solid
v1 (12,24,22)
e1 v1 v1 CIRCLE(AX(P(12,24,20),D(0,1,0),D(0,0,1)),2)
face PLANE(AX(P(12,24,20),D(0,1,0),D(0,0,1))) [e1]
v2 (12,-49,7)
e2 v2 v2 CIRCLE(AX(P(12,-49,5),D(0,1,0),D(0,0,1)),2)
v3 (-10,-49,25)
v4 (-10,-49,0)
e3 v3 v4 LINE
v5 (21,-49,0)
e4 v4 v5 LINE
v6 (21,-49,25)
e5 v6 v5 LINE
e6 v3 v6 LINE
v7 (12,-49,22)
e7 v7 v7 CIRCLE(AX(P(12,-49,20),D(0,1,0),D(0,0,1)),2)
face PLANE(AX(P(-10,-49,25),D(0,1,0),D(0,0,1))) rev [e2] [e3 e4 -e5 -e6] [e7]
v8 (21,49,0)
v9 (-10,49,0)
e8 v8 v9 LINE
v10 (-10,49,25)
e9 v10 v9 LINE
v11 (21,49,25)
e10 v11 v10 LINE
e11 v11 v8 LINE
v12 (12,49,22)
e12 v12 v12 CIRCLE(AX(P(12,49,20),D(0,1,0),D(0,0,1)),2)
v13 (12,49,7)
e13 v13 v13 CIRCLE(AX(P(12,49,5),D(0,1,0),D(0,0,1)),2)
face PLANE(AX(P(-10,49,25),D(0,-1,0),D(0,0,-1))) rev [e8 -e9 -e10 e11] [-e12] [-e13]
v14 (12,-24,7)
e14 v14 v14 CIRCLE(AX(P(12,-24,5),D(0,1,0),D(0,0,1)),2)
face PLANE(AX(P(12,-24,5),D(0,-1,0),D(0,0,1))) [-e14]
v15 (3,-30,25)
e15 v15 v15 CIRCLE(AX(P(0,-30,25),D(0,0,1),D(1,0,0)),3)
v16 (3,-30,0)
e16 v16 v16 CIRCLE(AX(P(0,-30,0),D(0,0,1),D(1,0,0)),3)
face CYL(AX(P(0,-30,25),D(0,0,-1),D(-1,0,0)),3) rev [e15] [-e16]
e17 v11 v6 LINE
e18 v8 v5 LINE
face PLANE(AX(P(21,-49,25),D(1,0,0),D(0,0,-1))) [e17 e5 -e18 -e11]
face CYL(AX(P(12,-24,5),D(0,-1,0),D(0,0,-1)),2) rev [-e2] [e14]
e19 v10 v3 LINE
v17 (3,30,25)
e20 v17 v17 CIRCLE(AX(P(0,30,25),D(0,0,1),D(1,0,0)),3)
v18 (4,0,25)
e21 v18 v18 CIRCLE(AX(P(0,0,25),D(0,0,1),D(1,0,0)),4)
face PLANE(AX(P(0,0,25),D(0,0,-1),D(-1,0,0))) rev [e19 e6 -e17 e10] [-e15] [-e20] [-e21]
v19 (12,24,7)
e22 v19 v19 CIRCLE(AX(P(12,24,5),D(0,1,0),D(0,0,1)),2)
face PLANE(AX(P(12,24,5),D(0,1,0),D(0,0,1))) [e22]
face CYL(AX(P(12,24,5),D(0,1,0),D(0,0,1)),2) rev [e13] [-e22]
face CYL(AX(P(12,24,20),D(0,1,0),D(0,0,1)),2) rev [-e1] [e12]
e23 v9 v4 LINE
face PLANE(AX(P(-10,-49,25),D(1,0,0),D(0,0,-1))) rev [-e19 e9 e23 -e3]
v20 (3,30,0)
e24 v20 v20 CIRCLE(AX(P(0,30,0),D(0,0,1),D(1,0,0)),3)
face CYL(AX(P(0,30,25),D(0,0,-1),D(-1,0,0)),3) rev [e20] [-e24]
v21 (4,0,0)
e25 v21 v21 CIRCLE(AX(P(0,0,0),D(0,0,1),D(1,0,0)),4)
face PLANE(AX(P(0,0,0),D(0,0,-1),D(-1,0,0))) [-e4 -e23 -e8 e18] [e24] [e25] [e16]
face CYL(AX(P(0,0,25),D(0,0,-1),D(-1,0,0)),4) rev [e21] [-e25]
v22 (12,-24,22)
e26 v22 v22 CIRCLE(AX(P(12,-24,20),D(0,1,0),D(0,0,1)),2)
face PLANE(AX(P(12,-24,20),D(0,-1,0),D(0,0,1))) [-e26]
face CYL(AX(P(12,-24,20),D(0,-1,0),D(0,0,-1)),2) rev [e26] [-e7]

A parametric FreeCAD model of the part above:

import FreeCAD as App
import Part
import Sketcher
Q = App.Units.Quantity


def add_polygon(sketch, points):
    """Adds a closed chain of lines whose ends are joined by coincident constraints."""
    first, n = sketch.GeometryCount, len(points)
    for a, b in zip(points, points[1:] + points[:1]):
        sketch.addGeometry(Part.LineSegment(App.Vector(*a, 0), App.Vector(*b, 0)), False)
    for i in range(n):
        sketch.addConstraint(Sketcher.Constraint("Coincident", first + i, 2, first + (i + 1) % n, 1))

doc = App.newDocument("Part")
params = doc.addObject("Spreadsheet::Sheet", "Params")
for row, (alias, value) in enumerate([
    ("sketch1_diameter", "6 mm"),
    ("sketch1_diameter2", "8 mm"),
    ("sketch1_width", "20 mm"),
    ("sketch1_height", "98 mm"),
    ("pad1_length", "25 mm"),
    ("sketch2_width", "11 mm"),
    ("sketch2_height", "98 mm"),
    ("pad2_length", "25 mm"),
    ("sketch3_diameter", "4 mm"),
    ("pocket1_length", "25 mm"),
], start=1):
    params.set(f"A{row}", alias)
    params.set(f"B{row}", "=" + value)
    params.setAlias(f"B{row}", alias)

body = doc.addObject("PartDesign::Body", "Body")

# Sketch on XY plane
sketch1 = body.newObject("Sketcher::SketchObject", "Sketch")
sketch1.AttachmentSupport = (doc.getObject("XY_Plane"), [""])
sketch1.MapMode = "FlatFace"
add_polygon(sketch1, [(-10, 49), (-10, -49), (10, -49), (10, 49)])  # lines 0-3
sketch1.addGeometry(Part.Circle(App.Vector(0, -30, 0), App.Vector(0, 0, 1), 3), False)  # 4
sketch1.addGeometry(Part.Circle(App.Vector(0, 0, 0), App.Vector(0, 0, 1), 4), False)  # 5
sketch1.addGeometry(Part.Circle(App.Vector(0, 30, 0), App.Vector(0, 0, 1), 3), False)  # 6
sketch1.addConstraint([
    Sketcher.Constraint("Vertical", 0),
    Sketcher.Constraint("Horizontal", 1),
    Sketcher.Constraint("Vertical", 2),
    Sketcher.Constraint("Horizontal", 3),
    Sketcher.Constraint("Coincident", 5, 3, -1, 1),
    Sketcher.Constraint("Equal", 4, 6),
    Sketcher.Constraint("Symmetric", 4, 3, 6, 3, -1, 1),
    Sketcher.Constraint("Symmetric", 0, 2, 2, 2, -1, 1),
    Sketcher.Constraint("PointOnObject", 4, 3, -2),
    Sketcher.Constraint("Diameter", 4, Q("6 mm")),
    Sketcher.Constraint("Diameter", 5, Q("8 mm")),
    Sketcher.Constraint("DistanceX", 1, 1, 1, 2, Q("20 mm")),
    Sketcher.Constraint("DistanceY", 0, 2, 0, 1, Q("98 mm")),
    Sketcher.Constraint("DistanceY", 4, 3, -1, 1, Q("30 mm")),
])
sketch1.setExpression("Constraints[13]", "Params.sketch1_diameter")
sketch1.setExpression("Constraints[14]", "Params.sketch1_diameter2")
sketch1.setExpression("Constraints[15]", "Params.sketch1_width")
sketch1.setExpression("Constraints[16]", "Params.sketch1_height")
pad1 = body.newObject("PartDesign::Pad", "Pad")
pad1.Profile = sketch1
pad1.setExpression("Length", "Params.pad1_length")

# Sketch on XY plane
sketch2 = body.newObject("Sketcher::SketchObject", "Sketch001")
sketch2.AttachmentSupport = (doc.getObject("XY_Plane"), [""])
sketch2.MapMode = "FlatFace"
add_polygon(sketch2, [(21, 49), (21, -49), (10, -49), (10, 49)])  # lines 0-3
sketch2.addConstraint([
    Sketcher.Constraint("Vertical", 0),
    Sketcher.Constraint("Horizontal", 1),
    Sketcher.Constraint("Vertical", 2),
    Sketcher.Constraint("Horizontal", 3),
    Sketcher.Constraint("DistanceX", 1, 2, 1, 1, Q("11 mm")),
    Sketcher.Constraint("DistanceY", 0, 2, 0, 1, Q("98 mm")),
    Sketcher.Constraint("DistanceX", -1, 1, 0, 2, Q("21 mm")),
    Sketcher.Constraint("DistanceY", 0, 2, -1, 1, Q("49 mm")),
])
sketch2.setExpression("Constraints[8]", "Params.sketch2_width")
sketch2.setExpression("Constraints[9]", "Params.sketch2_height")
pad2 = body.newObject("PartDesign::Pad", "Pad001")
pad2.Profile = sketch2
pad2.setExpression("Length", "Params.pad2_length")

# Sketch on XZ plane
sketch3 = body.newObject("Sketcher::SketchObject", "Sketch002")
sketch3.AttachmentSupport = (doc.getObject("XZ_Plane"), [""])
sketch3.MapMode = "FlatFace"
sketch3.AttachmentOffset = App.Placement(App.Vector(0, 0, -49), App.Rotation())
sketch3.addGeometry([
    Part.Circle(App.Vector(12, 5, 0), App.Vector(0, 0, 1), 2),
    Part.Circle(App.Vector(12, 20, 0), App.Vector(0, 0, 1), 2),
], False)
sketch3.addConstraint([
    Sketcher.Constraint("Equal", 0, 1),
    Sketcher.Constraint("Vertical", 0, 3, 1, 3),
    Sketcher.Constraint("Diameter", 0, Q("4 mm")),
    Sketcher.Constraint("DistanceX", -1, 1, 0, 3, Q("12 mm")),
    Sketcher.Constraint("DistanceY", -1, 1, 0, 3, Q("5 mm")),
    Sketcher.Constraint("DistanceY", -1, 1, 1, 3, Q("20 mm")),
])
sketch3.setExpression("Constraints[2]", "Params.sketch3_diameter")
pocket1 = body.newObject("PartDesign::Pocket", "Pocket")
pocket1.Profile = sketch3
pocket1.setExpression("Length", "Params.pocket1_length")
pocket1.Reversed = True
doc.recompute()

mirrored = body.newObject("PartDesign::Mirrored", "Mirrored")
mirrored.Originals = [pocket1]
mirrored.MirrorPlane = (doc.getObject("XZ_Plane"), [""])
body.Tip = mirrored

doc.recompute()
